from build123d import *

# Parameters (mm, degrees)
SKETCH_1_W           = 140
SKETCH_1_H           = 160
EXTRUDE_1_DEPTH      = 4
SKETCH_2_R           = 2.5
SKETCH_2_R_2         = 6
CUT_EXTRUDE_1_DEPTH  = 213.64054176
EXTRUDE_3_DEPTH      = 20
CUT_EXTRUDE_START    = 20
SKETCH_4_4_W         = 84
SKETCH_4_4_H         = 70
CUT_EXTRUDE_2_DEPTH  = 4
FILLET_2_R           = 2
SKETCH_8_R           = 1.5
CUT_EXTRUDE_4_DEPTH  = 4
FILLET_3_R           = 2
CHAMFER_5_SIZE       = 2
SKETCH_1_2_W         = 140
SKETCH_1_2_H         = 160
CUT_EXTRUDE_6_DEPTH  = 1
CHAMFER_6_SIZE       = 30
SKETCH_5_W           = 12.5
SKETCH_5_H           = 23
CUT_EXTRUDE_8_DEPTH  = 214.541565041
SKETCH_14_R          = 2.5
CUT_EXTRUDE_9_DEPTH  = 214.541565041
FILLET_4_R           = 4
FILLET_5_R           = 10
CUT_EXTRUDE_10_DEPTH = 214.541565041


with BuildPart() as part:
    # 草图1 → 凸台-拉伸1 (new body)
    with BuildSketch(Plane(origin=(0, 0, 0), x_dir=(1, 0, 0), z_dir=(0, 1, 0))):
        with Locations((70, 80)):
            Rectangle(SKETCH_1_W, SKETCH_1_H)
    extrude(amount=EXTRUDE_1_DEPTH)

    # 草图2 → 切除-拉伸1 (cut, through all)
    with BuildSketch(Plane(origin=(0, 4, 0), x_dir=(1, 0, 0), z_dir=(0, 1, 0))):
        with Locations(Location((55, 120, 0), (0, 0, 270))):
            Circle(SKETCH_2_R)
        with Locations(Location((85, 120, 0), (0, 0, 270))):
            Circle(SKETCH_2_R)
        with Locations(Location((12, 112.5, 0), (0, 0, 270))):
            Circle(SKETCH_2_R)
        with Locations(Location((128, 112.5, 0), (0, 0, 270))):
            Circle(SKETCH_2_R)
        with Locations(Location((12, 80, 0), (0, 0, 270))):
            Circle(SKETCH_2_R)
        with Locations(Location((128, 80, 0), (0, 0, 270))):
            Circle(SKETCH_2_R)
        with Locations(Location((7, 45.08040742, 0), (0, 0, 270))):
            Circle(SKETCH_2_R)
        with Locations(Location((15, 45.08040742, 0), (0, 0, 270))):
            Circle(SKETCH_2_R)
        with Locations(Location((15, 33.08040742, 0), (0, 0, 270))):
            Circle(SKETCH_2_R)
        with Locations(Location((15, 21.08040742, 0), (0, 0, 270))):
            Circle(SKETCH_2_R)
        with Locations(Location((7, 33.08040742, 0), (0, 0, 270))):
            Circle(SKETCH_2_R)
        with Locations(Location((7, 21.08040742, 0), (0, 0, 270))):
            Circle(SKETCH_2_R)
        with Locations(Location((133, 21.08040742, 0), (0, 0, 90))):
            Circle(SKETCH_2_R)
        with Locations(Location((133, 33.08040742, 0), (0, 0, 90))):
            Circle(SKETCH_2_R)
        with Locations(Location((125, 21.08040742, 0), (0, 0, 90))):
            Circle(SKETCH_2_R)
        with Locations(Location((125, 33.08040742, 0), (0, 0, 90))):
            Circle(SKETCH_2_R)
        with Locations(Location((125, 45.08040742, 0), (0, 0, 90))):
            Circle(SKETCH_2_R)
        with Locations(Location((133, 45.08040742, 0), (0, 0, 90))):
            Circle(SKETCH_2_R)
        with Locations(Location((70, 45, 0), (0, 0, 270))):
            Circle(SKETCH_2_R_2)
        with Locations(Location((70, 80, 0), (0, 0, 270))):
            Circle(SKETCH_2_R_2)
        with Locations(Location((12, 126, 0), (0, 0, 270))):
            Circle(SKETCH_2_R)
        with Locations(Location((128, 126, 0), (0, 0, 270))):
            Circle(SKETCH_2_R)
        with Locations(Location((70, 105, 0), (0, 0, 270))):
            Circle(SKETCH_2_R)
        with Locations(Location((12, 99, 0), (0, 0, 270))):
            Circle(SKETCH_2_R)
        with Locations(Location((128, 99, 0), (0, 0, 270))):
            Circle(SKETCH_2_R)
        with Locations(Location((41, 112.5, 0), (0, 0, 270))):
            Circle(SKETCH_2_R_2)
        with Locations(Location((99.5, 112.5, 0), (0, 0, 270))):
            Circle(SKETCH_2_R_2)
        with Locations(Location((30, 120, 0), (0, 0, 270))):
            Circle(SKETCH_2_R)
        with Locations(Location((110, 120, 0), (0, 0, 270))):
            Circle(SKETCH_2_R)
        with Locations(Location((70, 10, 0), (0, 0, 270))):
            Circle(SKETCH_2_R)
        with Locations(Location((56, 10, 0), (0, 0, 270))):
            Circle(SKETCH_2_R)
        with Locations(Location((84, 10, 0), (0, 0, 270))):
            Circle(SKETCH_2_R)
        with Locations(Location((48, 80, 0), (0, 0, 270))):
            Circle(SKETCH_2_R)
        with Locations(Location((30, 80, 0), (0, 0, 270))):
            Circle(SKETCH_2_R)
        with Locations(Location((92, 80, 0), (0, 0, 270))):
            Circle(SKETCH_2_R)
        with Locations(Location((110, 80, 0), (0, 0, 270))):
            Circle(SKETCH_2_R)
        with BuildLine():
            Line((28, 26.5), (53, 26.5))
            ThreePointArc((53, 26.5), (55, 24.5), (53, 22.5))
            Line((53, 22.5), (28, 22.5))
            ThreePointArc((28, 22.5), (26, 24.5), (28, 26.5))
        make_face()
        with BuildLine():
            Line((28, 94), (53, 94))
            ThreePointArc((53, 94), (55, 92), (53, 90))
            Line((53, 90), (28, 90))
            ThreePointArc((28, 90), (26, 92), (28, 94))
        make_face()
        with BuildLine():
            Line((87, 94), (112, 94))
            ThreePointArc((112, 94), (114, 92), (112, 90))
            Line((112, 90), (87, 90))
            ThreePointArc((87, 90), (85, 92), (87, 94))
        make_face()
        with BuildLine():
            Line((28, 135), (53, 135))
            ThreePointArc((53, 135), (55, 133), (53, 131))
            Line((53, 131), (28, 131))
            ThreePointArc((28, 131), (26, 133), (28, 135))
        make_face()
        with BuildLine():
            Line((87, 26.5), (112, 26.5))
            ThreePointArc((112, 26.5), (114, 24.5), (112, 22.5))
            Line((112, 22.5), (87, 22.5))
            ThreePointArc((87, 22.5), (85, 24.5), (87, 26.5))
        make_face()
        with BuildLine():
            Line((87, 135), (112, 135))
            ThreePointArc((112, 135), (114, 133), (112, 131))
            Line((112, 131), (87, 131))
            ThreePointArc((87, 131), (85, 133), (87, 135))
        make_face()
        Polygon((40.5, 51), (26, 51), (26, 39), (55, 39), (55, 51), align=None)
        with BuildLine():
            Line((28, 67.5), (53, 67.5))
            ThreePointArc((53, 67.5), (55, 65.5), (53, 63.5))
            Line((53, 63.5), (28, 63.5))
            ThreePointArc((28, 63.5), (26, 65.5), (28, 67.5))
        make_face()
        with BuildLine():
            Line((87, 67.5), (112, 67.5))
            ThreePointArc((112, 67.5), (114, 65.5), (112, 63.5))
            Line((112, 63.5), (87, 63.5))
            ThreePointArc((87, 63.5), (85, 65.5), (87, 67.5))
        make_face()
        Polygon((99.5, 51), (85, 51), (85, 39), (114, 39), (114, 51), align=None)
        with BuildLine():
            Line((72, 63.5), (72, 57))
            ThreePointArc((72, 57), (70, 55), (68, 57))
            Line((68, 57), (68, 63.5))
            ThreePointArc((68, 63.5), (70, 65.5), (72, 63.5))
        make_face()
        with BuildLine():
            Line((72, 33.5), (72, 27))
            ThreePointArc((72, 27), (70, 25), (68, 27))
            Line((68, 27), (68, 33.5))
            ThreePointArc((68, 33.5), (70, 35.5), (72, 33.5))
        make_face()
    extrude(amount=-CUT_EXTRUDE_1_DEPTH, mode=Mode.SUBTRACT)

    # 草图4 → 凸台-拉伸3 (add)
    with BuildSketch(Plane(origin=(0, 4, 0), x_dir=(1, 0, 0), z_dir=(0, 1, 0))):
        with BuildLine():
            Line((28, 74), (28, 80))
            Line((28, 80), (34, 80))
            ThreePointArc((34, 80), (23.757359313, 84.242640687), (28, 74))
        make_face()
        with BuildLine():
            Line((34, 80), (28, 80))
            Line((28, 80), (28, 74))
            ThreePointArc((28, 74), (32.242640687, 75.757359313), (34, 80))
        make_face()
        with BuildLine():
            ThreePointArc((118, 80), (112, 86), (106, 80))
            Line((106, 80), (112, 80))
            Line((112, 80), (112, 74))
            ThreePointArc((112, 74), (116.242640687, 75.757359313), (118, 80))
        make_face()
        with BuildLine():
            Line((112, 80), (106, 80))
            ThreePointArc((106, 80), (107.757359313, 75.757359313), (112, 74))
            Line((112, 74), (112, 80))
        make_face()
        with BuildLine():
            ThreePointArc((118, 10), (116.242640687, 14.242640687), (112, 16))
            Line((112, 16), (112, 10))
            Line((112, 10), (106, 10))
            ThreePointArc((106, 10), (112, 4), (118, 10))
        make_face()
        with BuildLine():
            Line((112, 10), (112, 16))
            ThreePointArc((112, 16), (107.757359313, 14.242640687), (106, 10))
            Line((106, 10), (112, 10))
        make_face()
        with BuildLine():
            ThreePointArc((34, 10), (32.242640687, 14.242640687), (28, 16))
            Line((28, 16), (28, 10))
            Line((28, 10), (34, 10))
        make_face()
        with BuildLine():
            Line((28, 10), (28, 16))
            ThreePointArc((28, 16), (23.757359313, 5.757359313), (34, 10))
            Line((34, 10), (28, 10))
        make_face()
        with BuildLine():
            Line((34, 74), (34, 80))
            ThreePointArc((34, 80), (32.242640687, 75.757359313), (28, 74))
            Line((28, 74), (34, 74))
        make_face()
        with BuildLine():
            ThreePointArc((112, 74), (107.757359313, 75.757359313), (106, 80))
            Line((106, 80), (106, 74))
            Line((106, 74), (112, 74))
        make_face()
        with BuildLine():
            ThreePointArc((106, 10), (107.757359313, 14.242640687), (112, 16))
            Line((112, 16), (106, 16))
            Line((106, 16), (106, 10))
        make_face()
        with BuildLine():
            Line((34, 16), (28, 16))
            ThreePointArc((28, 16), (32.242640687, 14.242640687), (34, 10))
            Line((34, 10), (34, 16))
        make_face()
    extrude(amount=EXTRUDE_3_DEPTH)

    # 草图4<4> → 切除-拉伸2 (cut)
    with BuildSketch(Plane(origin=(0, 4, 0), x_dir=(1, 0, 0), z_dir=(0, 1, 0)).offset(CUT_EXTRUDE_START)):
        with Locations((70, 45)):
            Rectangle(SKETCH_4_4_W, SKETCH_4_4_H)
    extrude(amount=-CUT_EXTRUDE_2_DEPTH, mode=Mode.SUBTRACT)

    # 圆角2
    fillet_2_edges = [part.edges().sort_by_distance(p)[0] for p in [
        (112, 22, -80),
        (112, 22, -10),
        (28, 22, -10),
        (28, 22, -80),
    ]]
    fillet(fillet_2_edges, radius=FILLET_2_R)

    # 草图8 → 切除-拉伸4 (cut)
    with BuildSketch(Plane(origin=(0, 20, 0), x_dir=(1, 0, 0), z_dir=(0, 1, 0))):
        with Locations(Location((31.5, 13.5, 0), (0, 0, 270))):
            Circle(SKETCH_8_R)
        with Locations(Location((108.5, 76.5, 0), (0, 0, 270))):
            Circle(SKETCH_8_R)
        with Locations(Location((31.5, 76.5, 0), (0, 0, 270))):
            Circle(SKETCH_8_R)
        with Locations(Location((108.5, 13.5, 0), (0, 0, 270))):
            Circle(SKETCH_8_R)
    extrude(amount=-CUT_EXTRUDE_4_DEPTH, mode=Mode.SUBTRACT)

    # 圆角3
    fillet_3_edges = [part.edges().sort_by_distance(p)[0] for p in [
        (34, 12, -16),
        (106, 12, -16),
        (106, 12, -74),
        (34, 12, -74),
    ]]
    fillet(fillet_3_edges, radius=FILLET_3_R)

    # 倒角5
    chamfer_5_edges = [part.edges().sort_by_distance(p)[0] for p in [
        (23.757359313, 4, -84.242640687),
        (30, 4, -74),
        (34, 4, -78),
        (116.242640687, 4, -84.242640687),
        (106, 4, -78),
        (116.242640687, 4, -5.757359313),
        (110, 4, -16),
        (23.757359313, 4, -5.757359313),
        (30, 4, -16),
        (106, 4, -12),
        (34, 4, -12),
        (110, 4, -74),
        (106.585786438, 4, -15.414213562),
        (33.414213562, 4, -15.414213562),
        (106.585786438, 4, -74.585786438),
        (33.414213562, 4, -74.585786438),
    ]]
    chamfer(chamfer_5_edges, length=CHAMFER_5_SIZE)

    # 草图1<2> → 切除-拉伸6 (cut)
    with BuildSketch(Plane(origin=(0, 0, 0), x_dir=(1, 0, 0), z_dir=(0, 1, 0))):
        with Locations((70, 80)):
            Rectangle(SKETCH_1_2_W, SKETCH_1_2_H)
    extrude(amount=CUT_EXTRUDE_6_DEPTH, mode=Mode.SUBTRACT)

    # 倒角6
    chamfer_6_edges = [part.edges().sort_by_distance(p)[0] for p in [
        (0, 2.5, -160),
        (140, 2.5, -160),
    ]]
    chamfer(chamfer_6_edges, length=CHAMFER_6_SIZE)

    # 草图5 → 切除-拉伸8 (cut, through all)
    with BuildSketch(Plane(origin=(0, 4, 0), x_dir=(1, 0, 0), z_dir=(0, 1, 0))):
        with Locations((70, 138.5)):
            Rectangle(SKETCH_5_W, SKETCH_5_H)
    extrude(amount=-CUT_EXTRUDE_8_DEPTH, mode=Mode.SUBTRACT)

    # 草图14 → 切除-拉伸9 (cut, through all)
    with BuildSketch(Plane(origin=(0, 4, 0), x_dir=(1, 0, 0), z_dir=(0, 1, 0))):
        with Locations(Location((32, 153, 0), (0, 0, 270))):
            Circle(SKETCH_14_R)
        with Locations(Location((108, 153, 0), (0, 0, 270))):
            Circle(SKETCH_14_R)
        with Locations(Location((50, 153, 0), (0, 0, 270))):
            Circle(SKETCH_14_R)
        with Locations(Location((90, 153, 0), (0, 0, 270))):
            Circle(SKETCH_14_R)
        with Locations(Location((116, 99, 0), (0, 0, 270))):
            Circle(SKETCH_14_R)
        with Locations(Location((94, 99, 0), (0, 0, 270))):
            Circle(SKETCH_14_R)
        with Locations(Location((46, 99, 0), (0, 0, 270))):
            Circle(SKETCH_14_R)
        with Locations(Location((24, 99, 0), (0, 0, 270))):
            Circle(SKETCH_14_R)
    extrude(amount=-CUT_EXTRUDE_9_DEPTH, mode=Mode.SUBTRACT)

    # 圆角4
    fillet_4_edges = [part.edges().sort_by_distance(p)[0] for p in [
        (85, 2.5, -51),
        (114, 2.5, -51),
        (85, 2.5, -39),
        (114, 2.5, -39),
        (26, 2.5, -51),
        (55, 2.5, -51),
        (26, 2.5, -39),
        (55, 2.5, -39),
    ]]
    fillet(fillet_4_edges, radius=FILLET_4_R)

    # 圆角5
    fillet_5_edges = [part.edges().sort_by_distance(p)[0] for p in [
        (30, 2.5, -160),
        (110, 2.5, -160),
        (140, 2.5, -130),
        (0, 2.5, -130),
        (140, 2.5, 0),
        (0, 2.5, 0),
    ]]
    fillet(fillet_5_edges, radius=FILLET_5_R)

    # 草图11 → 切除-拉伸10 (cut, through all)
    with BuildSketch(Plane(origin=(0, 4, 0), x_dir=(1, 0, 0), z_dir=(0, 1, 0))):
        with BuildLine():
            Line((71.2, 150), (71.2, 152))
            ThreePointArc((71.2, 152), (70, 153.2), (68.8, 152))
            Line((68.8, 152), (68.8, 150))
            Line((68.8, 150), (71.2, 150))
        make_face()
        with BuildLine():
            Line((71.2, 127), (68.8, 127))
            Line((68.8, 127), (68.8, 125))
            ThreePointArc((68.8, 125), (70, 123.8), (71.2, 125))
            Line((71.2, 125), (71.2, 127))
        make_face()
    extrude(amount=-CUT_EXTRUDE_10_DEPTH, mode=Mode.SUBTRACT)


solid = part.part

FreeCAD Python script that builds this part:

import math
import FreeCAD as App
import Part
import Sketcher
from FreeCAD import Vector
Q = App.Units.Quantity


def edges_at(feature, points):
    """Names of the edges that pass closest to the given points."""
    edges = feature.Shape.Edges
    near = lambda p: min(range(len(edges)), key=lambda i: edges[i].distToShape(Part.Vertex(*p))[0])
    return sorted({f"Edge{near(p) + 1}" for p in points})


def add_polygon(sketch, points):
    """Adds a closed chain of lines whose ends are joined by coincident constraints."""
    first, n = sketch.GeometryCount, len(points)
    for a, b in zip(points, points[1:] + points[:1]):
        sketch.addGeometry(Part.LineSegment(App.Vector(*a, 0), App.Vector(*b, 0)), False)
    for i in range(n):
        sketch.addConstraint(Sketcher.Constraint("Coincident", first + i, 2, first + (i + 1) % n, 1))

doc = App.newDocument("Part")
body = doc.addObject("PartDesign::Body", "Body")

# Sketch on XZ plane
sketch1 = body.newObject("Sketcher::SketchObject", "Sketch")
sketch1.AttachmentSupport = (doc.getObject("XZ_Plane"), [""])
sketch1.MapMode = "FlatFace"
add_polygon(sketch1, [(0, -160), (0, 0), (140, 0), (140, -160)])  # lines 0-3
sketch1.addConstraint([
    Sketcher.Constraint("Vertical", 0),
    Sketcher.Constraint("Horizontal", 1),
    Sketcher.Constraint("Vertical", 2),
    Sketcher.Constraint("Horizontal", 3),
    Sketcher.Constraint("Coincident", 0, 2, -1, 1),
    Sketcher.Constraint("DistanceX", 1, 1, 1, 2, Q("140 mm")),
    Sketcher.Constraint("DistanceY", 0, 1, 0, 2, Q("160 mm")),
])
pad1 = body.newObject("PartDesign::Pad", "Pad")
pad1.Profile = sketch1
pad1.Length = 4
pad1.Reversed = True

# Sketch on XZ plane
sketch2 = body.newObject("Sketcher::SketchObject", "Sketch001")
sketch2.AttachmentSupport = (doc.getObject("XZ_Plane"), [""])
sketch2.MapMode = "FlatFace"
sketch2.AttachmentOffset = App.Placement(Vector(0, 0, -4), App.Rotation())
sketch2.addGeometry(Part.Circle(Vector(55, -120, 0), Vector(0, 0, 1), 2.5), False)  # 0
sketch2.addGeometry(Part.Circle(Vector(85, -120, 0), Vector(0, 0, 1), 2.5), False)  # 1
sketch2.addGeometry(Part.Circle(Vector(12, -112.5, 0), Vector(0, 0, 1), 2.5), False)  # 2
sketch2.addGeometry(Part.Circle(Vector(128, -112.5, 0), Vector(0, 0, 1), 2.5), False)  # 3
sketch2.addGeometry(Part.Circle(Vector(12, -80, 0), Vector(0, 0, 1), 2.5), False)  # 4
sketch2.addGeometry(Part.Circle(Vector(128, -80, 0), Vector(0, 0, 1), 2.5), False)  # 5
sketch2.addGeometry(Part.Circle(Vector(7, -45.1, 0), Vector(0, 0, 1), 2.5), False)  # 6
sketch2.addGeometry(Part.Circle(Vector(15, -45.1, 0), Vector(0, 0, 1), 2.5), False)  # 7
sketch2.addGeometry(Part.Circle(Vector(15, -33.1, 0), Vector(0, 0, 1), 2.5), False)  # 8
sketch2.addGeometry(Part.Circle(Vector(15, -21.1, 0), Vector(0, 0, 1), 2.5), False)  # 9
sketch2.addGeometry(Part.Circle(Vector(7, -33.1, 0), Vector(0, 0, 1), 2.5), False)  # 10
sketch2.addGeometry(Part.Circle(Vector(7, -21.1, 0), Vector(0, 0, 1), 2.5), False)  # 11
sketch2.addGeometry(Part.Circle(Vector(133, -21.1, 0), Vector(0, 0, 1), 2.5), False)  # 12
sketch2.addGeometry(Part.Circle(Vector(133, -33.1, 0), Vector(0, 0, 1), 2.5), False)  # 13
sketch2.addGeometry(Part.Circle(Vector(125, -21.1, 0), Vector(0, 0, 1), 2.5), False)  # 14
sketch2.addGeometry(Part.Circle(Vector(125, -33.1, 0), Vector(0, 0, 1), 2.5), False)  # 15
sketch2.addGeometry(Part.Circle(Vector(125, -45.1, 0), Vector(0, 0, 1), 2.5), False)  # 16
sketch2.addGeometry(Part.Circle(Vector(133, -45.1, 0), Vector(0, 0, 1), 2.5), False)  # 17
sketch2.addGeometry(Part.Circle(Vector(70, -45, 0), Vector(0, 0, 1), 6), False)  # 18
sketch2.addGeometry(Part.Circle(Vector(70, -80, 0), Vector(0, 0, 1), 6), False)  # 19
sketch2.addGeometry(Part.Circle(Vector(12, -126, 0), Vector(0, 0, 1), 2.5), False)  # 20
sketch2.addGeometry(Part.Circle(Vector(128, -126, 0), Vector(0, 0, 1), 2.5), False)  # 21
sketch2.addGeometry(Part.Circle(Vector(70, -105, 0), Vector(0, 0, 1), 2.5), False)  # 22
sketch2.addGeometry(Part.Circle(Vector(12, -99, 0), Vector(0, 0, 1), 2.5), False)  # 23
sketch2.addGeometry(Part.Circle(Vector(128, -99, 0), Vector(0, 0, 1), 2.5), False)  # 24
sketch2.addGeometry(Part.Circle(Vector(41, -112.5, 0), Vector(0, 0, 1), 6), False)  # 25
sketch2.addGeometry(Part.Circle(Vector(99.5, -112.5, 0), Vector(0, 0, 1), 6), False)  # 26
sketch2.addGeometry(Part.Circle(Vector(30, -120, 0), Vector(0, 0, 1), 2.5), False)  # 27
sketch2.addGeometry(Part.Circle(Vector(110, -120, 0), Vector(0, 0, 1), 2.5), False)  # 28
sketch2.addGeometry(Part.Circle(Vector(70, -10, 0), Vector(0, 0, 1), 2.5), False)  # 29
sketch2.addGeometry(Part.Circle(Vector(56, -10, 0), Vector(0, 0, 1), 2.5), False)  # 30
sketch2.addGeometry(Part.Circle(Vector(84, -10, 0), Vector(0, 0, 1), 2.5), False)  # 31
sketch2.addGeometry(Part.Circle(Vector(48, -80, 0), Vector(0, 0, 1), 2.5), False)  # 32
sketch2.addGeometry(Part.Circle(Vector(30, -80, 0), Vector(0, 0, 1), 2.5), False)  # 33
sketch2.addGeometry(Part.Circle(Vector(92, -80, 0), Vector(0, 0, 1), 2.5), False)  # 34
sketch2.addGeometry(Part.Circle(Vector(110, -80, 0), Vector(0, 0, 1), 2.5), False)  # 35
sketch2.addGeometry(Part.LineSegment(Vector(53, -26.5, 0), Vector(28, -26.5, 0)), False)  # 36
sketch2.addGeometry(Part.ArcOfCircle(Part.Circle(Vector(28, -24.5, 0), Vector(0, 0, 1), 2), math.radians(90), math.radians(270)), False)  # 37
sketch2.addGeometry(Part.LineSegment(Vector(28, -22.5, 0), Vector(53, -22.5, 0)), False)  # 38
sketch2.addGeometry(Part.ArcOfCircle(Part.Circle(Vector(53, -24.5, 0), Vector(0, 0, 1), 2), math.radians(-90), math.radians(90)), False)  # 39
sketch2.addGeometry(Part.LineSegment(Vector(53, -94, 0), Vector(28, -94, 0)), False)  # 40
sketch2.addGeometry(Part.ArcOfCircle(Part.Circle(Vector(28, -92, 0), Vector(0, 0, 1), 2), math.radians(90), math.radians(270)), False)  # 41
sketch2.addGeometry(Part.LineSegment(Vector(28, -90, 0), Vector(53, -90, 0)), False)  # 42
sketch2.addGeometry(Part.ArcOfCircle(Part.Circle(Vector(53, -92, 0), Vector(0, 0, 1), 2), math.radians(-90), math.radians(90)), False)  # 43
sketch2.addGeometry(Part.LineSegment(Vector(112, -94, 0), Vector(87, -94, 0)), False)  # 44
sketch2.addGeometry(Part.ArcOfCircle(Part.Circle(Vector(87, -92, 0), Vector(0, 0, 1), 2), math.radians(90), math.radians(270)), False)  # 45
sketch2.addGeometry(Part.LineSegment(Vector(87, -90, 0), Vector(112, -90, 0)), False)  # 46
sketch2.addGeometry(Part.ArcOfCircle(Part.Circle(Vector(112, -92, 0), Vector(0, 0, 1), 2), math.radians(-90), math.radians(90)), False)  # 47
sketch2.addGeometry(Part.LineSegment(Vector(53, -135, 0), Vector(28, -135, 0)), False)  # 48
sketch2.addGeometry(Part.ArcOfCircle(Part.Circle(Vector(28, -133, 0), Vector(0, 0, 1), 2), math.radians(90), math.radians(270)), False)  # 49
sketch2.addGeometry(Part.LineSegment(Vector(28, -131, 0), Vector(53, -131, 0)), False)  # 50
sketch2.addGeometry(Part.ArcOfCircle(Part.Circle(Vector(53, -133, 0), Vector(0, 0, 1), 2), math.radians(-90), math.radians(90)), False)  # 51
sketch2.addGeometry(Part.LineSegment(Vector(112, -26.5, 0), Vector(87, -26.5, 0)), False)  # 52
sketch2.addGeometry(Part.ArcOfCircle(Part.Circle(Vector(87, -24.5, 0), Vector(0, 0, 1), 2), math.radians(90), math.radians(270)), False)  # 53
sketch2.addGeometry(Part.LineSegment(Vector(87, -22.5, 0), Vector(112, -22.5, 0)), False)  # 54
sketch2.addGeometry(Part.ArcOfCircle(Part.Circle(Vector(112, -24.5, 0), Vector(0, 0, 1), 2), math.radians(-90), math.radians(90)), False)  # 55
sketch2.addGeometry(Part.LineSegment(Vector(112, -135, 0), Vector(87, -135, 0)), False)  # 56
sketch2.addGeometry(Part.ArcOfCircle(Part.Circle(Vector(87, -133, 0), Vector(0, 0, 1), 2), math.radians(90), math.radians(270)), False)  # 57
sketch2.addGeometry(Part.LineSegment(Vector(87, -131, 0), Vector(112, -131, 0)), False)  # 58
sketch2.addGeometry(Part.ArcOfCircle(Part.Circle(Vector(112, -133, 0), Vector(0, 0, 1), 2), math.radians(-90), math.radians(90)), False)  # 59
add_polygon(sketch2, [(26, -51), (26, -39), (55, -39), (55, -51)])  # lines 60-63
sketch2.addGeometry(Part.LineSegment(Vector(53, -67.5, 0), Vector(28, -67.5, 0)), False)  # 64
sketch2.addGeometry(Part.ArcOfCircle(Part.Circle(Vector(28, -65.5, 0), Vector(0, 0, 1), 2), math.radians(90), math.radians(270)), False)  # 65
sketch2.addGeometry(Part.LineSegment(Vector(28, -63.5, 0), Vector(53, -63.5, 0)), False)  # 66
sketch2.addGeometry(Part.ArcOfCircle(Part.Circle(Vector(53, -65.5, 0), Vector(0, 0, 1), 2), math.radians(-90), math.radians(90)), False)  # 67
sketch2.addGeometry(Part.LineSegment(Vector(112, -67.5, 0), Vector(87, -67.5, 0)), False)  # 68
sketch2.addGeometry(Part.ArcOfCircle(Part.Circle(Vector(87, -65.5, 0), Vector(0, 0, 1), 2), math.radians(90), math.radians(270)), False)  # 69
sketch2.addGeometry(Part.LineSegment(Vector(87, -63.5, 0), Vector(112, -63.5, 0)), False)  # 70
sketch2.addGeometry(Part.ArcOfCircle(Part.Circle(Vector(112, -65.5, 0), Vector(0, 0, 1), 2), math.radians(-90), math.radians(90)), False)  # 71
add_polygon(sketch2, [(85, -51), (85, -39), (114, -39), (114, -51)])  # lines 72-75
sketch2.addGeometry(Part.LineSegment(Vector(72, -57, 0), Vector(72, -63.5, 0)), False)  # 76
sketch2.addGeometry(Part.ArcOfCircle(Part.Circle(Vector(70, -63.5, 0), Vector(0, 0, 1), 2), math.radians(180), math.radians(360)), False)  # 77
sketch2.addGeometry(Part.LineSegment(Vector(68, -63.5, 0), Vector(68, -57, 0)), False)  # 78
sketch2.addGeometry(Part.ArcOfCircle(Part.Circle(Vector(70, -57, 0), Vector(0, 0, 1), 2), math.radians(0), math.radians(180)), False)  # 79
sketch2.addGeometry(Part.LineSegment(Vector(72, -27, 0), Vector(72, -33.5, 0)), False)  # 80
sketch2.addGeometry(Part.ArcOfCircle(Part.Circle(Vector(70, -33.5, 0), Vector(0, 0, 1), 2), math.radians(180), math.radians(360)), False)  # 81
sketch2.addGeometry(Part.LineSegment(Vector(68, -33.5, 0), Vector(68, -27, 0)), False)  # 82
sketch2.addGeometry(Part.ArcOfCircle(Part.Circle(Vector(70, -27, 0), Vector(0, 0, 1), 2), math.radians(0), math.radians(180)), False)  # 83
sketch2.addConstraint([
    Sketcher.Constraint("Tangent", 36, 2, 37, 2),
    Sketcher.Constraint("Tangent", 37, 1, 38, 1),
    Sketcher.Constraint("Tangent", 38, 2, 39, 2),
    Sketcher.Constraint("Tangent", 39, 1, 36, 1),
    Sketcher.Constraint("Tangent", 40, 2, 41, 2),
    Sketcher.Constraint("Tangent", 41, 1, 42, 1),
    Sketcher.Constraint("Tangent", 42, 2, 43, 2),
    Sketcher.Constraint("Tangent", 43, 1, 40, 1),
    Sketcher.Constraint("Tangent", 44, 2, 45, 2),
    Sketcher.Constraint("Tangent", 45, 1, 46, 1),
    Sketcher.Constraint("Tangent", 46, 2, 47, 2),
    Sketcher.Constraint("Tangent", 47, 1, 44, 1),
    Sketcher.Constraint("Tangent", 48, 2, 49, 2),
    Sketcher.Constraint("Tangent", 49, 1, 50, 1),
    Sketcher.Constraint("Tangent", 50, 2, 51, 2),
    Sketcher.Constraint("Tangent", 51, 1, 48, 1),
    Sketcher.Constraint("Tangent", 52, 2, 53, 2),
    Sketcher.Constraint("Tangent", 53, 1, 54, 1),
    Sketcher.Constraint("Tangent", 54, 2, 55, 2),
    Sketcher.Constraint("Tangent", 55, 1, 52, 1),
    Sketcher.Constraint("Tangent", 56, 2, 57, 2),
    Sketcher.Constraint("Tangent", 57, 1, 58, 1),
    Sketcher.Constraint("Tangent", 58, 2, 59, 2),
    Sketcher.Constraint("Tangent", 59, 1, 56, 1),
    Sketcher.Constraint("Tangent", 64, 2, 65, 2),
    Sketcher.Constraint("Tangent", 65, 1, 66, 1),
    Sketcher.Constraint("Tangent", 66, 2, 67, 2),
    Sketcher.Constraint("Tangent", 67, 1, 64, 1),
    Sketcher.Constraint("Tangent", 68, 2, 69, 2),
    Sketcher.Constraint("Tangent", 69, 1, 70, 1),
    Sketcher.Constraint("Tangent", 70, 2, 71, 2),
    Sketcher.Constraint("Tangent", 71, 1, 68, 1),
    Sketcher.Constraint("Tangent", 76, 2, 77, 2),
    Sketcher.Constraint("Tangent", 77, 1, 78, 1),
    Sketcher.Constraint("Tangent", 78, 2, 79, 2),
    Sketcher.Constraint("Tangent", 79, 1, 76, 1),
    Sketcher.Constraint("Tangent", 80, 2, 81, 2),
    Sketcher.Constraint("Tangent", 81, 1, 82, 1),
    Sketcher.Constraint("Tangent", 82, 2, 83, 2),
    Sketcher.Constraint("Tangent", 83, 1, 80, 1),
    Sketcher.Constraint("Horizontal", 36),
    Sketcher.Constraint("Horizontal", 38),
    Sketcher.Constraint("Horizontal", 40),
    Sketcher.Constraint("Horizontal", 42),
    Sketcher.Constraint("Horizontal", 44),
    Sketcher.Constraint("Horizontal", 46),
    Sketcher.Constraint("Horizontal", 48),
    Sketcher.Constraint("Horizontal", 50),
    Sketcher.Constraint("Horizontal", 52),
    Sketcher.Constraint("Horizontal", 54),
    Sketcher.Constraint("Horizontal", 56),
    Sketcher.Constraint("Horizontal", 58),
    Sketcher.Constraint("Vertical", 60),
    Sketcher.Constraint("Horizontal", 61),
    Sketcher.Constraint("Vertical", 62),
    Sketcher.Constraint("Horizontal", 63),
    Sketcher.Constraint("Horizontal", 64),
    Sketcher.Constraint("Horizontal", 66),
    Sketcher.Constraint("Horizontal", 68),
    Sketcher.Constraint("Horizontal", 70),
    Sketcher.Constraint("Vertical", 72),
    Sketcher.Constraint("Horizontal", 73),
    Sketcher.Constraint("Vertical", 74),
    Sketcher.Constraint("Horizontal", 75),
    Sketcher.Constraint("Vertical", 76),
    Sketcher.Constraint("Vertical", 78),
    Sketcher.Constraint("Vertical", 80),
    Sketcher.Constraint("Vertical", 82),
    Sketcher.Constraint("Equal", 0, 1),
    Sketcher.Constraint("Equal", 1, 2),
    Sketcher.Constraint("Equal", 2, 3),
    Sketcher.Constraint("Equal", 3, 4),
    Sketcher.Constraint("Equal", 4, 5),
    Sketcher.Constraint("Equal", 5, 6),
    Sketcher.Constraint("Equal", 6, 7),
    Sketcher.Constraint("Equal", 7, 8),
    Sketcher.Constraint("Equal", 8, 9),
    Sketcher.Constraint("Equal", 9, 10),
    Sketcher.Constraint("Equal", 10, 11),
    Sketcher.Constraint("Equal", 11, 12),
    Sketcher.Constraint("Equal", 12, 13),
    Sketcher.Constraint("Equal", 13, 14),
    Sketcher.Constraint("Equal", 14, 15),
    Sketcher.Constraint("Equal", 15, 16),
    Sketcher.Constraint("Equal", 16, 17),
    Sketcher.Constraint("Equal", 18, 19),
    Sketcher.Constraint("Equal", 17, 20),
    Sketcher.Constraint("Equal", 20, 21),
    Sketcher.Constraint("Equal", 21, 22),
    Sketcher.Constraint("Equal", 22, 23),
    Sketcher.Constraint("Equal", 23, 24),
    Sketcher.Constraint("Equal", 19, 25),
    Sketcher.Constraint("Equal", 25, 26),
    Sketcher.Constraint("Equal", 24, 27),
    Sketcher.Constraint("Equal", 27, 28),
    Sketcher.Constraint("Equal", 28, 29),
    Sketcher.Constraint("Equal", 29, 30),
    Sketcher.Constraint("Equal", 30, 31),
    Sketcher.Constraint("Equal", 31, 32),
    Sketcher.Constraint("Equal", 32, 33),
    Sketcher.Constraint("Equal", 33, 34),
    Sketcher.Constraint("Equal", 34, 35),
    Sketcher.Constraint("Equal", 39, 41),
    Sketcher.Constraint("Equal", 43, 45),
    Sketcher.Constraint("Equal", 47, 49),
    Sketcher.Constraint("Equal", 51, 53),
    Sketcher.Constraint("Equal", 55, 57),
    Sketcher.Constraint("Equal", 59, 65),
    Sketcher.Constraint("Equal", 67, 69),
    Sketcher.Constraint("Equal", 71, 77),
    Sketcher.Constraint("Equal", 79, 81),
    Sketcher.Constraint("Horizontal", 0, 3, 1, 3),
    Sketcher.Constraint("Horizontal", 2, 3, 3, 3),
    Sketcher.Constraint("Horizontal", 4, 3, 5, 3),
    Sketcher.Constraint("Horizontal", 6, 3, 7, 3),
    Sketcher.Constraint("Horizontal", 8, 3, 10, 3),
    Sketcher.Constraint("Horizontal", 9, 3, 11, 3),
    Sketcher.Constraint("Horizontal", 11, 3, 12, 3),
    Sketcher.Constraint("Horizontal", 10, 3, 13, 3),
    Sketcher.Constraint("Horizontal", 12, 3, 14, 3),
    Sketcher.Constraint("Horizontal", 13, 3, 15, 3),
    Sketcher.Constraint("Horizontal", 7, 3, 16, 3),
    Sketcher.Constraint("Horizontal", 16, 3, 17, 3),
    Sketcher.Constraint("Horizontal", 5, 3, 19, 3),
    Sketcher.Constraint("Horizontal", 20, 3, 21, 3),
    Sketcher.Constraint("Horizontal", 23, 3, 24, 3),
    Sketcher.Constraint("Horizontal", 3, 3, 25, 3),
    Sketcher.Constraint("Horizontal", 25, 3, 26, 3),
    Sketcher.Constraint("Horizontal", 1, 3, 27, 3),
    Sketcher.Constraint("Horizontal", 27, 3, 28, 3),
    Sketcher.Constraint("Horizontal", 29, 3, 30, 3),
    Sketcher.Constraint("Horizontal", 30, 3, 31, 3),
    Sketcher.Constraint("Horizontal", 19, 3, 32, 3),
    Sketcher.Constraint("Horizontal", 32, 3, 33, 3),
    Sketcher.Constraint("Horizontal", 33, 3, 34, 3),
    Sketcher.Constraint("Horizontal", 34, 3, 35, 3),
    Sketcher.Constraint("Horizontal", 43, 3, 45, 3),
    Sketcher.Constraint("Horizontal", 39, 3, 53, 3),
    Sketcher.Constraint("Horizontal", 51, 3, 57, 3),
    Sketcher.Constraint("Horizontal", 67, 3, 69, 3),
    Sketcher.Constraint("Horizontal", 77, 3, 65, 1),
    Sketcher.Constraint("Horizontal", 61, 2, 72, 2),
    Sketcher.Constraint("Horizontal", 63, 2, 74, 2),
    Sketcher.Constraint("Vertical", 2, 3, 4, 3),
    Sketcher.Constraint("Vertical", 3, 3, 5, 3),
    Sketcher.Constraint("Vertical", 7, 3, 8, 3),
    Sketcher.Constraint("Vertical", 8, 3, 9, 3),
    Sketcher.Constraint("Vertical", 6, 3, 10, 3),
    Sketcher.Constraint("Vertical", 10, 3, 11, 3),
    Sketcher.Constraint("Vertical", 12, 3, 13, 3),
    Sketcher.Constraint("Vertical", 14, 3, 15, 3),
    Sketcher.Constraint("Vertical", 15, 3, 16, 3),
    Sketcher.Constraint("Vertical", 13, 3, 17, 3),
    Sketcher.Constraint("Vertical", 18, 3, 19, 3),
    Sketcher.Constraint("Vertical", 4, 3, 20, 3),
    Sketcher.Constraint("Vertical", 5, 3, 21, 3),
    Sketcher.Constraint("Vertical", 19, 3, 22, 3),
    Sketcher.Constraint("Vertical", 20, 3, 23, 3),
    Sketcher.Constraint("Vertical", 21, 3, 24, 3),
    Sketcher.Constraint("Vertical", 22, 3, 29, 3),
    Sketcher.Constraint("Vertical", 27, 3, 33, 3),
    Sketcher.Constraint("Vertical", 28, 3, 35, 3),
    Sketcher.Constraint("Vertical", 37, 3, 41, 3),
    Sketcher.Constraint("Vertical", 39, 3, 43, 3),
    Sketcher.Constraint("Vertical", 41, 3, 49, 3),
    Sketcher.Constraint("Vertical", 43, 3, 51, 3),
    Sketcher.Constraint("Vertical", 45, 3, 53, 3),
    Sketcher.Constraint("Vertical", 47, 3, 55, 3),
    Sketcher.Constraint("Vertical", 53, 3, 57, 3),
    Sketcher.Constraint("Vertical", 55, 3, 59, 3),
    Sketcher.Constraint("Vertical", 49, 3, 65, 3),
    Sketcher.Constraint("Vertical", 51, 3, 67, 3),
    Sketcher.Constraint("Vertical", 57, 3, 69, 3),
    Sketcher.Constraint("Vertical", 59, 3, 71, 3),
    Sketcher.Constraint("Vertical", 29, 3, 77, 3),
    Sketcher.Constraint("Vertical", 79, 3, 81, 3),
    Sketcher.Constraint("Vertical", 0, 3, 61, 2),
    Sketcher.Constraint("Vertical", 1, 3, 72, 2),
    Sketcher.Constraint("Equal", 42, 44),
    Sketcher.Constraint("Equal", 63, 73),
    Sketcher.Constraint("Equal", 78, 80),
    Sketcher.Constraint("Diameter", 0, Q("5 mm")),
    Sketcher.Constraint("Diameter", 18, Q("12 mm")),
    Sketcher.Constraint("Radius", 37, Q("2 mm")),
    Sketcher.Constraint("DistanceX", 36, 2, 36, 1, Q("25 mm")),
    Sketcher.Constraint("DistanceX", 61, 1, 61, 2, Q("29 mm")),
    Sketcher.Constraint("DistanceY", 60, 1, 60, 2, Q("12 mm")),
    Sketcher.Constraint("DistanceY", 76, 2, 76, 1, Q("6.5 mm")),
    Sketcher.Constraint("DistanceX", -1, 1, 0, 3, Q("55 mm")),
    Sketcher.Constraint("DistanceY", 0, 3, -1, 1, Q("120 mm")),
    Sketcher.Constraint("DistanceX", -1, 1, 1, 3, Q("85 mm")),
    Sketcher.Constraint("DistanceX", -1, 1, 2, 3, Q("12 mm")),
    Sketcher.Constraint("DistanceX", -1, 1, 3, 3, Q("128 mm")),
    Sketcher.Constraint("DistanceY", 4, 3, -1, 1, Q("80 mm")),
    Sketcher.Constraint("DistanceX", -1, 1, 6, 3, Q("7 mm")),
    Sketcher.Constraint("DistanceX", -1, 1, 7, 3, Q("15 mm")),
    Sketcher.Constraint("DistanceX", -1, 1, 12, 3, Q("133 mm")),
    Sketcher.Constraint("DistanceX", -1, 1, 14, 3, Q("125 mm")),
    Sketcher.Constraint("DistanceX", -1, 1, 18, 3, Q("70 mm")),
    Sketcher.Constraint("DistanceY", 18, 3, -1, 1, Q("45 mm")),
    Sketcher.Constraint("DistanceY", 20, 3, -1, 1, Q("126 mm")),
    Sketcher.Constraint("DistanceY", 22, 3, -1, 1, Q("105 mm")),
    Sketcher.Constraint("DistanceY", 23, 3, -1, 1, Q("99 mm")),
    Sketcher.Constraint("DistanceX", -1, 1, 25, 3, Q("41 mm")),
    Sketcher.Constraint("DistanceX", -1, 1, 27, 3, Q("30 mm")),
    Sketcher.Constraint("DistanceX", -1, 1, 28, 3, Q("110 mm")),
    Sketcher.Constraint("DistanceY", 29, 3, -1, 1, Q("10 mm")),
    Sketcher.Constraint("DistanceX", -1, 1, 30, 3, Q("56 mm")),
    Sketcher.Constraint("DistanceX", -1, 1, 31, 3, Q("84 mm")),
    Sketcher.Constraint("DistanceX", -1, 1, 32, 3, Q("48 mm")),
    Sketcher.Constraint("DistanceX", -1, 1, 34, 3, Q("92 mm")),
    Sketcher.Constraint("DistanceX", -1, 1, 37, 3, Q("28 mm")),
    Sketcher.Constraint("DistanceY", 41, 3, -1, 1, Q("92 mm")),
    Sketcher.Constraint("DistanceX", -1, 1, 45, 3, Q("87 mm")),
    Sketcher.Constraint("DistanceY", 49, 3, -1, 1, Q("133 mm")),
    Sketcher.Constraint("DistanceY", 79, 3, -1, 1, Q("57 mm")),
    Sketcher.Constraint("DistanceY", 83, 3, -1, 1, Q("27 mm")),
    Sketcher.Constraint("DistanceY", 60, 2, -1, 1, Q("39 mm")),
    Sketcher.Constraint("DistanceY", 2, 3, -1, 1, Q("112.5 mm")),
    Sketcher.Constraint("DistanceX", -1, 1, 26, 3, Q("99.5 mm")),
    Sketcher.Constraint("DistanceY", 37, 3, -1, 1, Q("24.5 mm")),
    Sketcher.Constraint("DistanceY", 6, 3, -1, 1, Q("45.080407 mm")),
    Sketcher.Constraint("DistanceY", 8, 3, -1, 1, Q("33.080407 mm")),
    Sketcher.Constraint("DistanceY", 9, 3, -1, 1, Q("21.080407 mm")),
])
pocket1 = body.newObject("PartDesign::Pocket", "Pocket")
pocket1.Profile = sketch2
pocket1.Type = "ThroughAll"
pocket1.Reversed = True

# Sketch on XZ plane
sketch3 = body.newObject("Sketcher::SketchObject", "Sketch002")
sketch3.AttachmentSupport = (doc.getObject("XZ_Plane"), [""])
sketch3.MapMode = "FlatFace"
sketch3.AttachmentOffset = App.Placement(Vector(0, 0, -4), App.Rotation())
sketch3.addGeometry([
    Part.ArcOfCircle(Part.Circle(Vector(28, -80, 0), Vector(0, 0, 1), 6), math.radians(90), math.radians(360)),  # 0
    Part.LineSegment(Vector(28, -74, 0), Vector(34, -74, 0)),  # 1
    Part.LineSegment(Vector(34, -74, 0), Vector(34, -80, 0)),  # 2
    Part.ArcOfCircle(Part.Circle(Vector(112, -80, 0), Vector(0, 0, 1), 6), math.radians(180), math.radians(360)),  # 3
    Part.LineSegment(Vector(106, -80, 0), Vector(106, -74, 0)),  # 4
    Part.LineSegment(Vector(106, -74, 0), Vector(112, -74, 0)),  # 5
    Part.ArcOfCircle(Part.Circle(Vector(112, -80, 0), Vector(0, 0, 1), 6), math.radians(0), math.radians(90)),  # 6
    Part.ArcOfCircle(Part.Circle(Vector(112, -10, 0), Vector(0, 0, 1), 6), math.radians(-90), math.radians(0)),  # 7
    Part.LineSegment(Vector(112, -16, 0), Vector(106, -16, 0)),  # 8
    Part.LineSegment(Vector(106, -16, 0), Vector(106, -10, 0)),  # 9
    Part.ArcOfCircle(Part.Circle(Vector(112, -10, 0), Vector(0, 0, 1), 6), math.radians(0), math.radians(180)),  # 10
    Part.ArcOfCircle(Part.Circle(Vector(28, -10, 0), Vector(0, 0, 1), 6), math.radians(0), math.radians(270)),  # 11
    Part.LineSegment(Vector(34, -10, 0), Vector(34, -16, 0)),  # 12
    Part.LineSegment(Vector(34, -16, 0), Vector(28, -16, 0)),  # 13
], False)
sketch3.addConstraint([
    Sketcher.Constraint("Tangent", 0, 1, 1, 1),
    Sketcher.Constraint("Coincident", 1, 2, 2, 1),
    Sketcher.Constraint("Tangent", 2, 2, 0, 2),
    Sketcher.Constraint("Tangent", 3, 1, 4, 1),
    Sketcher.Constraint("Coincident", 4, 2, 5, 1),
    Sketcher.Constraint("Tangent", 5, 2, 6, 2),
    Sketcher.Constraint("Tangent", 6, 1, 3, 2),
    Sketcher.Constraint("Tangent", 7, 1, 8, 1),
    Sketcher.Constraint("Coincident", 8, 2, 9, 1),
    Sketcher.Constraint("Tangent", 9, 2, 10, 2),
    Sketcher.Constraint("Tangent", 10, 1, 7, 2),
    Sketcher.Constraint("Tangent", 11, 1, 12, 1),
    Sketcher.Constraint("Coincident", 12, 2, 13, 1),
    Sketcher.Constraint("Tangent", 13, 2, 11, 2),
    Sketcher.Constraint("Horizontal", 1),
    Sketcher.Constraint("Vertical", 2),
    Sketcher.Constraint("Vertical", 4),
    Sketcher.Constraint("Horizontal", 5),
    Sketcher.Constraint("Horizontal", 8),
    Sketcher.Constraint("Vertical", 9),
    Sketcher.Constraint("Vertical", 12),
    Sketcher.Constraint("Horizontal", 13),
    Sketcher.Constraint("Equal", 0, 3),
    Sketcher.Constraint("Equal", 3, 6),
    Sketcher.Constraint("Equal", 6, 7),
    Sketcher.Constraint("Equal", 7, 10),
    Sketcher.Constraint("Equal", 10, 11),
    Sketcher.Constraint("Horizontal", 0, 3, 3, 3),
    Sketcher.Constraint("Horizontal", 10, 3, 11, 3),
    Sketcher.Constraint("Horizontal", 3, 1, 6, 1),
    Sketcher.Constraint("Horizontal", 9, 2, 10, 1),
    Sketcher.Constraint("Vertical", 6, 3, 7, 3),
    Sketcher.Constraint("Vertical", 0, 3, 11, 3),
    Sketcher.Constraint("Radius", 0, Q("6 mm")),
    Sketcher.Constraint("DistanceX", -1, 1, 0, 3, Q("28 mm")),
    Sketcher.Constraint("DistanceY", 0, 3, -1, 1, Q("80 mm")),
    Sketcher.Constraint("DistanceX", -1, 1, 3, 3, Q("112 mm")),
    Sketcher.Constraint("DistanceY", 7, 3, -1, 1, Q("10 mm")),
])
pad2 = body.newObject("PartDesign::Pad", "Pad001")
pad2.Profile = sketch3
pad2.Length = 20
pad2.Reversed = True

# Sketch on XZ plane
sketch4 = body.newObject("Sketcher::SketchObject", "Sketch003")
sketch4.AttachmentSupport = (doc.getObject("XZ_Plane"), [""])
sketch4.MapMode = "FlatFace"
sketch4.AttachmentOffset = App.Placement(Vector(0, 0, -24), App.Rotation())
add_polygon(sketch4, [(28, -80), (28, -10), (112, -10), (112, -80)])  # lines 0-3
sketch4.addConstraint([
    Sketcher.Constraint("Vertical", 0),
    Sketcher.Constraint("Horizontal", 1),
    Sketcher.Constraint("Vertical", 2),
    Sketcher.Constraint("Horizontal", 3),
    Sketcher.Constraint("DistanceX", 1, 1, 1, 2, Q("84 mm")),
    Sketcher.Constraint("DistanceY", 0, 1, 0, 2, Q("70 mm")),
    Sketcher.Constraint("DistanceX", -1, 1, 0, 2, Q("28 mm")),
    Sketcher.Constraint("DistanceY", 0, 2, -1, 1, Q("10 mm")),
])
pocket2 = body.newObject("PartDesign::Pocket", "Pocket001")
pocket2.Profile = sketch4
pocket2.Length = 4
pocket2.Reversed = True
doc.recompute()

fillet = body.newObject("PartDesign::Fillet", "Fillet")
fillet.Base = (pocket2, edges_at(pocket2, [
    (112, 22, -80),
    (112, 22, -10),
    (28, 22, -10),
    (28, 22, -80),
]))
fillet.Radius = 2

# Sketch on XZ plane
sketch5 = body.newObject("Sketcher::SketchObject", "Sketch004")
sketch5.AttachmentSupport = (doc.getObject("XZ_Plane"), [""])
sketch5.MapMode = "FlatFace"
sketch5.AttachmentOffset = App.Placement(Vector(0, 0, -20), App.Rotation())
sketch5.addGeometry([
    Part.Circle(Vector(31.5, -13.5, 0), Vector(0, 0, 1), 1.5),
    Part.Circle(Vector(108.5, -76.5, 0), Vector(0, 0, 1), 1.5),
    Part.Circle(Vector(31.5, -76.5, 0), Vector(0, 0, 1), 1.5),
    Part.Circle(Vector(108.5, -13.5, 0), Vector(0, 0, 1), 1.5),
], False)
sketch5.addConstraint([
    Sketcher.Constraint("Equal", 0, 1),
    Sketcher.Constraint("Equal", 1, 2),
    Sketcher.Constraint("Equal", 2, 3),
    Sketcher.Constraint("Horizontal", 1, 3, 2, 3),
    Sketcher.Constraint("Horizontal", 0, 3, 3, 3),
    Sketcher.Constraint("Vertical", 0, 3, 2, 3),
    Sketcher.Constraint("Vertical", 1, 3, 3, 3),
    Sketcher.Constraint("Diameter", 0, Q("3 mm")),
    Sketcher.Constraint("DistanceX", 0, 3, 1, 3, Q("77 mm")),
    Sketcher.Constraint("DistanceY", 1, 3, 0, 3, Q("63 mm")),
    Sketcher.Constraint("DistanceX", -1, 1, 0, 3, Q("31.5 mm")),
    Sketcher.Constraint("DistanceY", 0, 3, -1, 1, Q("13.5 mm")),
])
pocket3 = body.newObject("PartDesign::Pocket", "Pocket002")
pocket3.Profile = sketch5
pocket3.Length = 4
pocket3.Reversed = True
doc.recompute()

fillet2 = body.newObject("PartDesign::Fillet", "Fillet001")
fillet2.Base = (pocket3, edges_at(pocket3, [
    (34, 12, -16),
    (106, 12, -16),
    (106, 12, -74),
    (34, 12, -74),
]))
fillet2.Radius = 2
doc.recompute()

chamfer = body.newObject("PartDesign::Chamfer", "Chamfer")
chamfer.Base = (fillet2, edges_at(fillet2, [
    (23.757, 4, -84.243),
    (30, 4, -74),
    (34, 4, -78),
    (112, 4, -86),
    (106, 4, -78),
    (112, 4, -4),
    (110, 4, -16),
    (23.757, 4, -5.757),
    (30, 4, -16),
    (106, 4, -12),
    (34, 4, -12),
    (110, 4, -74),
    (106.586, 4, -15.414),
    (33.414, 4, -15.414),
    (106.586, 4, -74.586),
    (33.414, 4, -74.586),
]))
chamfer.Size = 2

# Sketch on XZ plane
sketch6 = body.newObject("Sketcher::SketchObject", "Sketch005")
sketch6.AttachmentSupport = (doc.getObject("XZ_Plane"), [""])
sketch6.MapMode = "FlatFace"
add_polygon(sketch6, [(0, -160), (0, 0), (140, 0), (140, -160)])  # lines 0-3
sketch6.addConstraint([
    Sketcher.Constraint("Vertical", 0),
    Sketcher.Constraint("Horizontal", 1),
    Sketcher.Constraint("Vertical", 2),
    Sketcher.Constraint("Horizontal", 3),
    Sketcher.Constraint("Coincident", 0, 2, -1, 1),
    Sketcher.Constraint("DistanceX", 1, 1, 1, 2, Q("140 mm")),
    Sketcher.Constraint("DistanceY", 0, 1, 0, 2, Q("160 mm")),
])
pocket4 = body.newObject("PartDesign::Pocket", "Pocket003")
pocket4.Profile = sketch6
pocket4.Length = 1
doc.recompute()

chamfer2 = body.newObject("PartDesign::Chamfer", "Chamfer001")
chamfer2.Base = (pocket4, edges_at(pocket4, [(0, 2.5, -160), (140, 2.5, -160)]))
chamfer2.Size = 30

# Sketch on XZ plane
sketch7 = body.newObject("Sketcher::SketchObject", "Sketch006")
sketch7.AttachmentSupport = (doc.getObject("XZ_Plane"), [""])
sketch7.MapMode = "FlatFace"
sketch7.AttachmentOffset = App.Placement(Vector(0, 0, -4), App.Rotation())
add_polygon(sketch7, [(64, -150), (64, -127), (76, -127), (76, -150)])  # lines 0-3
sketch7.addConstraint([
    Sketcher.Constraint("Vertical", 0),
    Sketcher.Constraint("Horizontal", 1),
    Sketcher.Constraint("Vertical", 2),
    Sketcher.Constraint("Horizontal", 3),
    Sketcher.Constraint("DistanceY", 0, 1, 0, 2, Q("23 mm")),
    Sketcher.Constraint("DistanceX", 1, 1, 1, 2, Q("12.5 mm")),
    Sketcher.Constraint("DistanceY", 0, 2, -1, 1, Q("127 mm")),
    Sketcher.Constraint("DistanceX", -1, 1, 0, 2, Q("63.75 mm")),
])
pocket5 = body.newObject("PartDesign::Pocket", "Pocket004")
pocket5.Profile = sketch7
pocket5.Type = "ThroughAll"
pocket5.Reversed = True

# Sketch on XZ plane
sketch8 = body.newObject("Sketcher::SketchObject", "Sketch007")
sketch8.AttachmentSupport = (doc.getObject("XZ_Plane"), [""])
sketch8.MapMode = "FlatFace"
sketch8.AttachmentOffset = App.Placement(Vector(0, 0, -4), App.Rotation())
sketch8.addGeometry([
    Part.Circle(Vector(32, -153, 0), Vector(0, 0, 1), 2.5),  # 0
    Part.Circle(Vector(108, -153, 0), Vector(0, 0, 1), 2.5),  # 1
    Part.Circle(Vector(50, -153, 0), Vector(0, 0, 1), 2.5),  # 2
    Part.Circle(Vector(90, -153, 0), Vector(0, 0, 1), 2.5),  # 3
    Part.Circle(Vector(116, -99, 0), Vector(0, 0, 1), 2.5),  # 4
    Part.Circle(Vector(94, -99, 0), Vector(0, 0, 1), 2.5),  # 5
    Part.Circle(Vector(46, -99, 0), Vector(0, 0, 1), 2.5),  # 6
    Part.Circle(Vector(24, -99, 0), Vector(0, 0, 1), 2.5),  # 7
], False)
sketch8.addConstraint([
    Sketcher.Constraint("Equal", 0, 1),
    Sketcher.Constraint("Equal", 1, 2),
    Sketcher.Constraint("Equal", 2, 3),
    Sketcher.Constraint("Equal", 3, 4),
    Sketcher.Constraint("Equal", 4, 5),
    Sketcher.Constraint("Equal", 5, 6),
    Sketcher.Constraint("Equal", 6, 7),
    Sketcher.Constraint("Horizontal", 0, 3, 1, 3),
    Sketcher.Constraint("Horizontal", 1, 3, 2, 3),
    Sketcher.Constraint("Horizontal", 2, 3, 3, 3),
    Sketcher.Constraint("Horizontal", 4, 3, 5, 3),
    Sketcher.Constraint("Horizontal", 5, 3, 6, 3),
    Sketcher.Constraint("Horizontal", 6, 3, 7, 3),
    Sketcher.Constraint("Diameter", 0, Q("5 mm")),
    Sketcher.Constraint("DistanceX", -1, 1, 0, 3, Q("32 mm")),
    Sketcher.Constraint("DistanceY", 0, 3, -1, 1, Q("153 mm")),
    Sketcher.Constraint("DistanceX", -1, 1, 1, 3, Q("108 mm")),
    Sketcher.Constraint("DistanceX", -1, 1, 2, 3, Q("50 mm")),
    Sketcher.Constraint("DistanceX", -1, 1, 3, 3, Q("90 mm")),
    Sketcher.Constraint("DistanceX", -1, 1, 4, 3, Q("116 mm")),
    Sketcher.Constraint("DistanceY", 4, 3, -1, 1, Q("99 mm")),
    Sketcher.Constraint("DistanceX", -1, 1, 5, 3, Q("94 mm")),
    Sketcher.Constraint("DistanceX", -1, 1, 6, 3, Q("46 mm")),
    Sketcher.Constraint("DistanceX", -1, 1, 7, 3, Q("24 mm")),
])
pocket6 = body.newObject("PartDesign::Pocket", "Pocket005")
pocket6.Profile = sketch8
pocket6.Type = "ThroughAll"
pocket6.Reversed = True
doc.recompute()

fillet3 = body.newObject("PartDesign::Fillet", "Fillet002")
fillet3.Base = (pocket6, edges_at(pocket6, [
    (85, 2.5, -51),
    (114, 2.5, -51),
    (85, 2.5, -39),
    (114, 2.5, -39),
    (26, 2.5, -51),
    (55, 2.5, -51),
    (26, 2.5, -39),
    (55, 2.5, -39),
]))
fillet3.Radius = 4
doc.recompute()

fillet4 = body.newObject("PartDesign::Fillet", "Fillet003")
fillet4.Base = (fillet3, edges_at(fillet3, [
    (30, 2.5, -160),
    (110, 2.5, -160),
    (140, 2.5, -130),
    (0, 2.5, -130),
    (140, 2.5, 0),
    (0, 2.5, 0),
]))
fillet4.Radius = 10

# Sketch on XZ plane
sketch9 = body.newObject("Sketcher::SketchObject", "Sketch008")
sketch9.AttachmentSupport = (doc.getObject("XZ_Plane"), [""])
sketch9.MapMode = "FlatFace"
sketch9.AttachmentOffset = App.Placement(Vector(0, 0, -4), App.Rotation())
sketch9.addGeometry([
    Part.LineSegment(Vector(71.2, -150, 0), Vector(71.2, -152, 0)),  # 0
    Part.ArcOfCircle(Part.Circle(Vector(70, -152, 0), Vector(0, 0, 1), 1.2), math.radians(180), math.radians(360)),  # 1
    Part.LineSegment(Vector(68.8, -152, 0), Vector(68.8, -150, 0)),  # 2
    Part.LineSegment(Vector(68.8, -150, 0), Vector(71.2, -150, 0)),  # 3
    Part.LineSegment(Vector(71.2, -127, 0), Vector(68.8, -127, 0)),  # 4
    Part.LineSegment(Vector(68.8, -127, 0), Vector(68.8, -125, 0)),  # 5
    Part.ArcOfCircle(Part.Circle(Vector(70, -125, 0), Vector(0, 0, 1), 1.2), math.radians(0), math.radians(180)),  # 6
    Part.LineSegment(Vector(71.2, -125, 0), Vector(71.2, -127, 0)),  # 7
], False)
sketch9.addConstraint([
    Sketcher.Constraint("Tangent", 0, 2, 1, 2),
    Sketcher.Constraint("Tangent", 1, 1, 2, 1),
    Sketcher.Constraint("Coincident", 2, 2, 3, 1),
    Sketcher.Constraint("Coincident", 3, 2, 0, 1),
    Sketcher.Constraint("Coincident", 4, 2, 5, 1),
    Sketcher.Constraint("Tangent", 5, 2, 6, 2),
    Sketcher.Constraint("Tangent", 6, 1, 7, 1),
    Sketcher.Constraint("Coincident", 7, 2, 4, 1),
    Sketcher.Constraint("Vertical", 0),
    Sketcher.Constraint("Vertical", 2),
    Sketcher.Constraint("Horizontal", 3),
    Sketcher.Constraint("Horizontal", 4),
    Sketcher.Constraint("Vertical", 5),
    Sketcher.Constraint("Vertical", 7),
    Sketcher.Constraint("Equal", 1, 6),
    Sketcher.Constraint("Vertical", 1, 3, 6, 3),
    Sketcher.Constraint("Equal", 2, 5),
    Sketcher.Constraint("Radius", 1, Q("1.2 mm")),
    Sketcher.Constraint("DistanceY", 0, 2, 0, 1, Q("2 mm")),
    Sketcher.Constraint("DistanceX", -1, 1, 1, 3, Q("70 mm")),
    Sketcher.Constraint("DistanceY", 1, 3, -1, 1, Q("152 mm")),
    Sketcher.Constraint("DistanceY", 6, 3, -1, 1, Q("125 mm")),
])
pocket7 = body.newObject("PartDesign::Pocket", "Pocket006")
pocket7.Profile = sketch9
pocket7.Type = "ThroughAll"
pocket7.Reversed = True

doc.recompute()
